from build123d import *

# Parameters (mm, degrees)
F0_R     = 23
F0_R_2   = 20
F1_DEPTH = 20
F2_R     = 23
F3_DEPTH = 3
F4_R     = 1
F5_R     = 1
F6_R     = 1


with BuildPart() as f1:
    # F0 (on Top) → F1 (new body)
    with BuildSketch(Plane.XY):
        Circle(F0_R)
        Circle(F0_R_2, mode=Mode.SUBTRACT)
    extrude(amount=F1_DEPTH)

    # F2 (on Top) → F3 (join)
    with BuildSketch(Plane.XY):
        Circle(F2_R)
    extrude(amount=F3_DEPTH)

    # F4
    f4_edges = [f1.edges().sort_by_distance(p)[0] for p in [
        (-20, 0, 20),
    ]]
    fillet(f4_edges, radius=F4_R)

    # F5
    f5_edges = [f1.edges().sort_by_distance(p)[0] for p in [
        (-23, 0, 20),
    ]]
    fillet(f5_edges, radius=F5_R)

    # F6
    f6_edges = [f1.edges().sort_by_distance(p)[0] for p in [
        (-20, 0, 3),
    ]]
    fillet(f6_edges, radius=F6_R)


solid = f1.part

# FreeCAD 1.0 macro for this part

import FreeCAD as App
import Part
import Sketcher
Q = App.Units.Quantity


def edges_at(feature, points):
    """Names of the edges that pass closest to the given points."""
    edges = feature.Shape.Edges
    near = lambda p: min(range(len(edges)), key=lambda i: edges[i].distToShape(Part.Vertex(*p))[0])
    return sorted({f"Edge{near(p) + 1}" for p in points})

doc = App.newDocument("Part")
body = doc.addObject("PartDesign::Body", "Body")

# Sketch on XY plane
sketch1 = body.newObject("Sketcher::SketchObject", "Sketch")
sketch1.AttachmentSupport = (doc.getObject("XY_Plane"), [""])
sketch1.MapMode = "FlatFace"
sketch1.addGeometry([
    Part.Circle(App.Vector(0, 0, 0), App.Vector(0, 0, 1), 23),
    Part.Circle(App.Vector(0, 0, 0), App.Vector(0, 0, 1), 20),
], False)
sketch1.addConstraint([
    Sketcher.Constraint("Coincident", 0, 3, -1, 1),
    Sketcher.Constraint("Coincident", 1, 3, -1, 1),
    Sketcher.Constraint("Diameter", 0, Q("46 mm")),
    Sketcher.Constraint("Diameter", 1, Q("40 mm")),
])
pad1 = body.newObject("PartDesign::Pad", "Pad")
pad1.Profile = sketch1
pad1.Length = 20

# Sketch on XY plane
sketch2 = body.newObject("Sketcher::SketchObject", "Sketch001")
sketch2.AttachmentSupport = (doc.getObject("XY_Plane"), [""])
sketch2.MapMode = "FlatFace"
sketch2.addGeometry(Part.Circle(App.Vector(0, 0, 0), App.Vector(0, 0, 1), 23), False)
sketch2.addConstraint([
    Sketcher.Constraint("Coincident", 0, 3, -1, 1),
    Sketcher.Constraint("Diameter", 0, Q("46 mm")),
])
pad2 = body.newObject("PartDesign::Pad", "Pad001")
pad2.Profile = sketch2
pad2.Length = 3
doc.recompute()

fillet = body.newObject("PartDesign::Fillet", "Fillet")
fillet.Base = (pad2, edges_at(pad2, [(-20, 0, 20)]))
fillet.Radius = 1
doc.recompute()

fillet2 = body.newObject("PartDesign::Fillet", "Fillet001")
fillet2.Base = (fillet, edges_at(fillet, [(-23, 0, 20)]))
fillet2.Radius = 1
doc.recompute()

fillet3 = body.newObject("PartDesign::Fillet", "Fillet002")
fillet3.Base = (fillet2, edges_at(fillet2, [(-20, 0, 3)]))
fillet3.Radius = 1

doc.recompute()
